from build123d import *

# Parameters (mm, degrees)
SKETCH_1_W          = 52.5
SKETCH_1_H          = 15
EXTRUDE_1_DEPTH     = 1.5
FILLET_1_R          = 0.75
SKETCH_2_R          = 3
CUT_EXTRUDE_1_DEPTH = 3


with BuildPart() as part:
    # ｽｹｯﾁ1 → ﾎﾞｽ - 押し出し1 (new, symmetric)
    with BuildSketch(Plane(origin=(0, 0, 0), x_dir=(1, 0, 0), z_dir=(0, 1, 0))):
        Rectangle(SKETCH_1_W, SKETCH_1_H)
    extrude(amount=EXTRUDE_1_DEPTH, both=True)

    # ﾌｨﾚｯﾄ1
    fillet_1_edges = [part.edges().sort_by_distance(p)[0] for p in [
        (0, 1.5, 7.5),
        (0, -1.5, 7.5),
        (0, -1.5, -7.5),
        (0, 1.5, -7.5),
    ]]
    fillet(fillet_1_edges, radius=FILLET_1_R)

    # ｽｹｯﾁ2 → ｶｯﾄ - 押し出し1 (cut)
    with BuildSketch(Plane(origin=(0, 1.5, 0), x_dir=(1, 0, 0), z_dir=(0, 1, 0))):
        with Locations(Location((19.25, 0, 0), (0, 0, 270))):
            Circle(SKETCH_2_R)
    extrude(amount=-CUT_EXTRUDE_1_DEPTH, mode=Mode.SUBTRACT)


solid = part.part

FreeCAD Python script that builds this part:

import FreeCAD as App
import Part
import Sketcher
from FreeCAD import Vector
Q = App.Units.Quantity


def edges_at(feature, points):
    """Names of the edges that pass closest to the given points."""
    edges = feature.Shape.Edges
    near = lambda p: min(range(len(edges)), key=lambda i: edges[i].distToShape(Part.Vertex(*p))[0])
    return sorted({f"Edge{near(p) + 1}" for p in points})


def add_polygon(sketch, points):
    """Adds a closed chain of lines whose ends are joined by coincident constraints."""
    first, n = sketch.GeometryCount, len(points)
    for a, b in zip(points, points[1:] + points[:1]):
        sketch.addGeometry(Part.LineSegment(App.Vector(*a, 0), App.Vector(*b, 0)), False)
    for i in range(n):
        sketch.addConstraint(Sketcher.Constraint("Coincident", first + i, 2, first + (i + 1) % n, 1))

doc = App.newDocument("Part")
body = doc.addObject("PartDesign::Body", "Body")

# Sketch on XZ plane
sketch1 = body.newObject("Sketcher::SketchObject", "Sketch")
sketch1.AttachmentSupport = (doc.getObject("XZ_Plane"), [""])
sketch1.MapMode = "FlatFace"
add_polygon(sketch1, [(-26, -8), (-26, 8), (26, 8), (26, -8)])  # lines 0-3
sketch1.addConstraint([
    Sketcher.Constraint("Vertical", 0),
    Sketcher.Constraint("Horizontal", 1),
    Sketcher.Constraint("Vertical", 2),
    Sketcher.Constraint("Horizontal", 3),
    Sketcher.Constraint("Symmetric", 0, 2, 2, 2, -1, 1),
    Sketcher.Constraint("DistanceY", 0, 1, 0, 2, Q("15 mm")),
    Sketcher.Constraint("DistanceX", 1, 1, 1, 2, Q("52.5 mm")),
])
pad1 = body.newObject("PartDesign::Pad", "Pad")
pad1.Profile = sketch1
pad1.Length = 3
pad1.Midplane = True
doc.recompute()

fillet = body.newObject("PartDesign::Fillet", "Fillet")
fillet.Base = (pad1, edges_at(pad1, [
    (0, 1.5, 7.5),
    (0, -1.5, 7.5),
    (0, -1.5, -7.5),
    (0, 1.5, -7.5),
]))
fillet.Radius = 0.75

# Sketch on XZ plane
sketch2 = body.newObject("Sketcher::SketchObject", "Sketch001")
sketch2.AttachmentSupport = (doc.getObject("XZ_Plane"), [""])
sketch2.MapMode = "FlatFace"
sketch2.AttachmentOffset = App.Placement(Vector(0, 0, -1.5), App.Rotation())
sketch2.addGeometry(Part.Circle(Vector(19.2, 0, 0), Vector(0, 0, 1), 3), False)
sketch2.addConstraint([
    Sketcher.Constraint("PointOnObject", 0, 3, -1),
    Sketcher.Constraint("Diameter", 0, Q("6 mm")),
    Sketcher.Constraint("DistanceX", -1, 1, 0, 3, Q("19.25 mm")),
])
pocket1 = body.newObject("PartDesign::Pocket", "Pocket")
pocket1.Profile = sketch2
pocket1.Length = 3
pocket1.Reversed = True

doc.recompute()
